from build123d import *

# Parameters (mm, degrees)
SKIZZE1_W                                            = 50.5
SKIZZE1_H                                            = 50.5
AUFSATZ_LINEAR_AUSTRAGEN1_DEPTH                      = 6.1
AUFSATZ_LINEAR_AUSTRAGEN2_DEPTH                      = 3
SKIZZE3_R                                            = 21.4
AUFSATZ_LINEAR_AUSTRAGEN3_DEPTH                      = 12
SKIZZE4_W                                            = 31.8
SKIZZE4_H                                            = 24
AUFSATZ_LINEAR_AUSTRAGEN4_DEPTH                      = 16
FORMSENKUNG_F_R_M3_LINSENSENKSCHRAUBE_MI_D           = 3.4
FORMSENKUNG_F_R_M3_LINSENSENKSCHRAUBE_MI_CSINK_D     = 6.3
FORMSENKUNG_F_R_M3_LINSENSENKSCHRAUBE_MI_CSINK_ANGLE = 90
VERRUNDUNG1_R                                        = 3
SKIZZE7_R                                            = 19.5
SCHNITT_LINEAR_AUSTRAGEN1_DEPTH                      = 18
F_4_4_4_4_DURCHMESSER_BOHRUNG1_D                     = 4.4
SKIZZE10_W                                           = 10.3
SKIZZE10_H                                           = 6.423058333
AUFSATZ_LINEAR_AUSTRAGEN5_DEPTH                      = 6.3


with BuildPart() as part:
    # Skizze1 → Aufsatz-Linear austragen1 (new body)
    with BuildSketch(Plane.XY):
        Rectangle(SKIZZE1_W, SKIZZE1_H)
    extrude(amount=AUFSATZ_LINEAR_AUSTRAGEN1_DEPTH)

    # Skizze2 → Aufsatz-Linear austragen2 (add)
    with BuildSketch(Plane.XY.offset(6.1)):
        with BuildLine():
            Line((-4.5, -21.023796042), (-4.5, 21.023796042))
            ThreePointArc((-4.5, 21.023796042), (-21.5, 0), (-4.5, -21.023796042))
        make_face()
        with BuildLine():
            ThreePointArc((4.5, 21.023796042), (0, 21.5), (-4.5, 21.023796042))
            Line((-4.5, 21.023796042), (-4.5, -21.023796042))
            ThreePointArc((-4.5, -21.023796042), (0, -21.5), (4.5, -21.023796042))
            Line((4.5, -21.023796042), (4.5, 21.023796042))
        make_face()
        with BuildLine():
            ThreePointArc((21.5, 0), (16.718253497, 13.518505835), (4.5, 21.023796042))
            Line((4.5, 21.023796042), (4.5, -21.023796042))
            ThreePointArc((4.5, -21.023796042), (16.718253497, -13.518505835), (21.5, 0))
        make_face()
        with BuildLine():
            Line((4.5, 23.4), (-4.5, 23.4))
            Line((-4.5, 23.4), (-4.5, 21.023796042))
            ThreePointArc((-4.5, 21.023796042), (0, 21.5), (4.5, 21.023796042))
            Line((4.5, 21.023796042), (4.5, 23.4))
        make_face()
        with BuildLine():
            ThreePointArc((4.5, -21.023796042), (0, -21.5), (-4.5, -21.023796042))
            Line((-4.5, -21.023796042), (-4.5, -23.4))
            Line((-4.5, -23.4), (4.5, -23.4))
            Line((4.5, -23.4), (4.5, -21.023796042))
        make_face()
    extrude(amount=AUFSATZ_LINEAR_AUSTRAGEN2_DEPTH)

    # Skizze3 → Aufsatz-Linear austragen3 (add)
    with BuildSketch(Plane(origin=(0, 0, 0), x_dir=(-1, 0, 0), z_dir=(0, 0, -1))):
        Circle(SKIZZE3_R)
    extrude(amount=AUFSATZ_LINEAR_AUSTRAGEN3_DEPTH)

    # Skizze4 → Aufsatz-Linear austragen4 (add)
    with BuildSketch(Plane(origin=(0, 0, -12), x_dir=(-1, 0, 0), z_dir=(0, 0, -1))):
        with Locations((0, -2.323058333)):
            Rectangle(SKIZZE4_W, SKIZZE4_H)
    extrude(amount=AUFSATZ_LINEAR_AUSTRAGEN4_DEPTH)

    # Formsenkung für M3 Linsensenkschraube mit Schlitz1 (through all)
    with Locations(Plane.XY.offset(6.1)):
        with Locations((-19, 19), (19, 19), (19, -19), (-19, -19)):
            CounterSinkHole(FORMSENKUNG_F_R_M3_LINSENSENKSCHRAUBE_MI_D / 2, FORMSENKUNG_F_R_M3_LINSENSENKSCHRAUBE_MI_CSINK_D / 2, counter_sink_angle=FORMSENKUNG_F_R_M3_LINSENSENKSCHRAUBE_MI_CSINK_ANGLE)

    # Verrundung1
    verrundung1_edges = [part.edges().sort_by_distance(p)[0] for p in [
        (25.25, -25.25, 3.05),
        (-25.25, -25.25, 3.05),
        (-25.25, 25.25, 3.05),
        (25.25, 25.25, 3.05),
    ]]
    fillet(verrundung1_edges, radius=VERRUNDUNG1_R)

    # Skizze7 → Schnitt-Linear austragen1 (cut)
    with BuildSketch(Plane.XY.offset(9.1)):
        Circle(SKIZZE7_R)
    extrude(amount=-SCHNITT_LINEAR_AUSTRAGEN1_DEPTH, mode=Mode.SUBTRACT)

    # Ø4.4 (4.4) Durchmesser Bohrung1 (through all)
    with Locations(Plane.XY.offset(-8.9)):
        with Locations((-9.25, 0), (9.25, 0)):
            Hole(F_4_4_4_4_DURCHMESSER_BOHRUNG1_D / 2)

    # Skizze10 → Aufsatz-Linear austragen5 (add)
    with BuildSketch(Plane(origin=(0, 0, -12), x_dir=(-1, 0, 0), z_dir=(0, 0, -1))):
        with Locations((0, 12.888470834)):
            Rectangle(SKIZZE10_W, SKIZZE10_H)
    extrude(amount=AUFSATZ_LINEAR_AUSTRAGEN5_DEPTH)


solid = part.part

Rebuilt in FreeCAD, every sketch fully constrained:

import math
import FreeCAD as App
import Part
import Sketcher


def edges_at(feature, points):
    """Names of the edges that pass closest to the given points."""
    edges = feature.Shape.Edges
    near = lambda p: min(range(len(edges)), key=lambda i: edges[i].distToShape(Part.Vertex(*p))[0])
    return sorted({f"Edge{near(p) + 1}" for p in points})


def add_polygon(sketch, points):
    """Adds a closed chain of lines whose ends are joined by coincident constraints."""
    first, n = sketch.GeometryCount, len(points)
    for a, b in zip(points, points[1:] + points[:1]):
        sketch.addGeometry(Part.LineSegment(App.Vector(*a, 0), App.Vector(*b, 0)), False)
    for i in range(n):
        sketch.addConstraint(Sketcher.Constraint("Coincident", first + i, 2, first + (i + 1) % n, 1))

doc = App.newDocument("Part")
body = doc.addObject("PartDesign::Body", "Body")

# Sketch on XY plane
sketch1 = body.newObject("Sketcher::SketchObject", "Sketch")
sketch1.AttachmentSupport = (doc.getObject("XY_Plane"), [""])
sketch1.MapMode = "FlatFace"
add_polygon(sketch1, [(-25, 25), (-25, -25), (25, -25), (25, 25)])  # lines 0-3
sketch1.addConstraint(Sketcher.Constraint("Vertical", 0))
sketch1.addConstraint(Sketcher.Constraint("Horizontal", 1))
sketch1.addConstraint(Sketcher.Constraint("Vertical", 2))
sketch1.addConstraint(Sketcher.Constraint("Horizontal", 3))
sketch1.addConstraint(Sketcher.Constraint("Symmetric", 0, 2, 2, 2, -1, 1))
sketch1.addConstraint(Sketcher.Constraint("Equal", 3, 0))
sketch1.addConstraint(Sketcher.Constraint("DistanceX", 1, 1, 1, 2, 50.5))
pad1 = body.newObject("PartDesign::Pad", "Pad")
pad1.Profile = sketch1
pad1.Length = 6.1

# Sketch on XY plane
sketch2 = body.newObject("Sketcher::SketchObject", "Sketch001")
sketch2.AttachmentSupport = (doc.getObject("XY_Plane"), [""])
sketch2.MapMode = "FlatFace"
sketch2.AttachmentOffset = App.Placement(App.Vector(0, 0, 6.1), App.Rotation())
sketch2.addGeometry(Part.ArcOfCircle(Part.Circle(App.Vector(0, 0, 0), App.Vector(0, 0, 1), 21.5), math.radians(102), math.radians(258)), False)
sketch2.addGeometry(Part.LineSegment(App.Vector(-4.5, -21, 0), App.Vector(-4.5, -23.4, 0)), False)
sketch2.addGeometry(Part.LineSegment(App.Vector(-4.5, -23.4, 0), App.Vector(4.5, -23.4, 0)), False)
sketch2.addGeometry(Part.LineSegment(App.Vector(4.5, -23.4, 0), App.Vector(4.5, -21, 0)), False)
sketch2.addGeometry(Part.ArcOfCircle(Part.Circle(App.Vector(0, 0, 0), App.Vector(0, 0, 1), 21.5), math.radians(-78), math.radians(0)), False)
sketch2.addGeometry(Part.ArcOfCircle(Part.Circle(App.Vector(0, 0, 0), App.Vector(0, 0, 1), 21.5), math.radians(0), math.radians(78)), False)
sketch2.addGeometry(Part.LineSegment(App.Vector(4.5, 21, 0), App.Vector(4.5, 23.4, 0)), False)
sketch2.addGeometry(Part.LineSegment(App.Vector(4.5, 23.4, 0), App.Vector(-4.5, 23.4, 0)), False)
sketch2.addGeometry(Part.LineSegment(App.Vector(-4.5, 23.4, 0), App.Vector(-4.5, 21, 0)), False)
sketch2.addConstraint(Sketcher.Constraint("Coincident", 0, 2, 1, 1))
sketch2.addConstraint(Sketcher.Constraint("Coincident", 1, 2, 2, 1))
sketch2.addConstraint(Sketcher.Constraint("Coincident", 2, 2, 3, 1))
sketch2.addConstraint(Sketcher.Constraint("Coincident", 3, 2, 4, 1))
sketch2.addConstraint(Sketcher.Constraint("Tangent", 4, 2, 5, 1))
sketch2.addConstraint(Sketcher.Constraint("Coincident", 5, 2, 6, 1))
sketch2.addConstraint(Sketcher.Constraint("Coincident", 6, 2, 7, 1))
sketch2.addConstraint(Sketcher.Constraint("Coincident", 7, 2, 8, 1))
sketch2.addConstraint(Sketcher.Constraint("Coincident", 8, 2, 0, 1))
sketch2.addConstraint(Sketcher.Constraint("Vertical", 1))
sketch2.addConstraint(Sketcher.Constraint("Horizontal", 2))
sketch2.addConstraint(Sketcher.Constraint("Vertical", 3))
sketch2.addConstraint(Sketcher.Constraint("Vertical", 6))
sketch2.addConstraint(Sketcher.Constraint("Horizontal", 7))
sketch2.addConstraint(Sketcher.Constraint("Vertical", 8))
sketch2.addConstraint(Sketcher.Constraint("Coincident", 0, 3, -1, 1))
sketch2.addConstraint(Sketcher.Constraint("Coincident", 4, 3, -1, 1))
sketch2.addConstraint(Sketcher.Constraint("Equal", 0, 4))
sketch2.addConstraint(Sketcher.Constraint("Equal", 4, 5))
sketch2.addConstraint(Sketcher.Constraint("Symmetric", 1, 2, 6, 2, -1, 1))
sketch2.addConstraint(Sketcher.Constraint("PointOnObject", 4, 2, -1))
sketch2.addConstraint(Sketcher.Constraint("Horizontal", 0, 2, 3, 2))
sketch2.addConstraint(Sketcher.Constraint("Horizontal", 5, 2, 8, 2))
sketch2.addConstraint(Sketcher.Constraint("Radius", 0, 21.5))
sketch2.addConstraint(Sketcher.Constraint("DistanceX", 2, 1, 2, 2, 9.0))
sketch2.addConstraint(Sketcher.Constraint("DistanceY", 1, 2, -1, 1, 23.4))
pad2 = body.newObject("PartDesign::Pad", "Pad001")
pad2.Profile = sketch2
pad2.Length = 3

# Sketch on XY plane
sketch3 = body.newObject("Sketcher::SketchObject", "Sketch002")
sketch3.AttachmentSupport = (doc.getObject("XY_Plane"), [""])
sketch3.MapMode = "FlatFace"
sketch3.addGeometry(Part.Circle(App.Vector(0, 0, 0), App.Vector(0, 0, 1), 21), False)
sketch3.addConstraint(Sketcher.Constraint("Coincident", 0, 3, -1, 1))
sketch3.addConstraint(Sketcher.Constraint("Diameter", 0, 42.8))
pad3 = body.newObject("PartDesign::Pad", "Pad002")
pad3.Profile = sketch3
pad3.Length = 12
pad3.Reversed = True

# Sketch on XY plane
sketch4 = body.newObject("Sketcher::SketchObject", "Sketch003")
sketch4.AttachmentSupport = (doc.getObject("XY_Plane"), [""])
sketch4.MapMode = "FlatFace"
sketch4.AttachmentOffset = App.Placement(App.Vector(0, 0, -12), App.Rotation())
add_polygon(sketch4, [(16, 10), (16, -14), (-16, -14), (-16, 10)])  # lines 0-3
sketch4.addConstraint(Sketcher.Constraint("Vertical", 0))
sketch4.addConstraint(Sketcher.Constraint("Horizontal", 1))
sketch4.addConstraint(Sketcher.Constraint("Vertical", 2))
sketch4.addConstraint(Sketcher.Constraint("Horizontal", 3))
sketch4.addConstraint(Sketcher.Constraint("DistanceY", 0, 2, 0, 1, 24.0))
sketch4.addConstraint(Sketcher.Constraint("DistanceX", 1, 2, 1, 1, 31.8))
sketch4.addConstraint(Sketcher.Constraint("DistanceX", -1, 1, 0, 2, 15.9))
sketch4.addConstraint(Sketcher.Constraint("DistanceY", 0, 2, -1, 1, 14.323058))
pad4 = body.newObject("PartDesign::Pad", "Pad003")
pad4.Profile = sketch4
pad4.Length = 16
pad4.Reversed = True

# Sketch on XY plane
sketch5 = body.newObject("Sketcher::SketchObject", "Sketch004")
sketch5.AttachmentSupport = (doc.getObject("XY_Plane"), [""])
sketch5.MapMode = "FlatFace"
sketch5.AttachmentOffset = App.Placement(App.Vector(0, 0, 6.1), App.Rotation())
sketch5.addGeometry(Part.Circle(App.Vector(-19, 19, 0), App.Vector(0, 0, 1), 1.7), False)
sketch5.addGeometry(Part.Circle(App.Vector(19, 19, 0), App.Vector(0, 0, 1), 1.7), False)
sketch5.addGeometry(Part.Circle(App.Vector(19, -19, 0), App.Vector(0, 0, 1), 1.7), False)
sketch5.addGeometry(Part.Circle(App.Vector(-19, -19, 0), App.Vector(0, 0, 1), 1.7), False)
sketch5.addConstraint(Sketcher.Constraint("Equal", 0, 1))
sketch5.addConstraint(Sketcher.Constraint("Equal", 1, 2))
sketch5.addConstraint(Sketcher.Constraint("Equal", 2, 3))
sketch5.addConstraint(Sketcher.Constraint("Symmetric", 0, 3, 2, 3, -1, 1))
sketch5.addConstraint(Sketcher.Constraint("Symmetric", 1, 3, 3, 3, -1, 1))
sketch5.addConstraint(Sketcher.Constraint("Symmetric", 0, 3, 1, 3, -2))
sketch5.addConstraint(Sketcher.Constraint("Diameter", 0, 3.4))
sketch5.addConstraint(Sketcher.Constraint("DistanceX", 0, 3, -1, 1, 19.0))
sketch5.addConstraint(Sketcher.Constraint("DistanceY", -1, 1, 0, 3, 19.0))
doc.recompute()
hole = body.newObject("PartDesign::Hole", "Hole")
hole.Profile = sketch5
hole.ThreadType = "None"
hole.Diameter = 3.4
hole.DepthType = "ThroughAll"
hole.HoleCutType = "Countersink"
hole.HoleCutDiameter = 6.3
hole.HoleCutCountersinkAngle = 90
doc.recompute()

fillet = body.newObject("PartDesign::Fillet", "Fillet")
fillet.Base = (hole, edges_at(hole, [
    (25.25, -25.25, 3.05),
    (-25.25, -25.25, 3.05),
    (-25.25, 25.25, 3.05),
    (25.25, 25.25, 3.05),
]))
fillet.Radius = 3

# Sketch on XY plane
sketch6 = body.newObject("Sketcher::SketchObject", "Sketch005")
sketch6.AttachmentSupport = (doc.getObject("XY_Plane"), [""])
sketch6.MapMode = "FlatFace"
sketch6.AttachmentOffset = App.Placement(App.Vector(0, 0, 9.1), App.Rotation())
sketch6.addGeometry(Part.Circle(App.Vector(0, 0, 0), App.Vector(0, 0, 1), 20), False)
sketch6.addConstraint(Sketcher.Constraint("Coincident", 0, 3, -1, 1))
sketch6.addConstraint(Sketcher.Constraint("Diameter", 0, 39.0))
pocket1 = body.newObject("PartDesign::Pocket", "Pocket")
pocket1.Profile = sketch6
pocket1.Length = 18

# Sketch on XY plane
sketch7 = body.newObject("Sketcher::SketchObject", "Sketch006")
sketch7.AttachmentSupport = (doc.getObject("XY_Plane"), [""])
sketch7.MapMode = "FlatFace"
sketch7.AttachmentOffset = App.Placement(App.Vector(0, 0, -8.9), App.Rotation())
sketch7.addGeometry(Part.Circle(App.Vector(-9.2, 0, 0), App.Vector(0, 0, 1), 2.2), False)
sketch7.addGeometry(Part.Circle(App.Vector(9.2, 0, 0), App.Vector(0, 0, 1), 2.2), False)
sketch7.addConstraint(Sketcher.Constraint("Equal", 0, 1))
sketch7.addConstraint(Sketcher.Constraint("Symmetric", 0, 3, 1, 3, -1, 1))
sketch7.addConstraint(Sketcher.Constraint("PointOnObject", 0, 3, -1))
sketch7.addConstraint(Sketcher.Constraint("Diameter", 0, 4.4))
sketch7.addConstraint(Sketcher.Constraint("DistanceX", 0, 3, 1, 3, 18.5))
doc.recompute()
hole2 = body.newObject("PartDesign::Hole", "Hole001")
hole2.Profile = sketch7
hole2.ThreadType = "None"
hole2.Diameter = 4.4
hole2.DepthType = "ThroughAll"

# Sketch on XY plane
sketch8 = body.newObject("Sketcher::SketchObject", "Sketch007")
sketch8.AttachmentSupport = (doc.getObject("XY_Plane"), [""])
sketch8.MapMode = "FlatFace"
sketch8.AttachmentOffset = App.Placement(App.Vector(0, 0, -12), App.Rotation())
add_polygon(sketch8, [(5, 16), (5, 10), (-5, 10), (-5, 16)])  # lines 0-3
sketch8.addConstraint(Sketcher.Constraint("Vertical", 0))
sketch8.addConstraint(Sketcher.Constraint("Horizontal", 1))
sketch8.addConstraint(Sketcher.Constraint("Vertical", 2))
sketch8.addConstraint(Sketcher.Constraint("Horizontal", 3))
sketch8.addConstraint(Sketcher.Constraint("DistanceX", 1, 2, 1, 1, 10.3))
sketch8.addConstraint(Sketcher.Constraint("DistanceY", -1, 1, 2, 2, 16.1))
sketch8.addConstraint(Sketcher.Constraint("DistanceX", -1, 1, 0, 2, 5.15))
sketch8.addConstraint(Sketcher.Constraint("DistanceY", 0, 2, 0, 1, 6.423058))
pad5 = body.newObject("PartDesign::Pad", "Pad004")
pad5.Profile = sketch8
pad5.Length = 6.3
pad5.Reversed = True

doc.recompute()
